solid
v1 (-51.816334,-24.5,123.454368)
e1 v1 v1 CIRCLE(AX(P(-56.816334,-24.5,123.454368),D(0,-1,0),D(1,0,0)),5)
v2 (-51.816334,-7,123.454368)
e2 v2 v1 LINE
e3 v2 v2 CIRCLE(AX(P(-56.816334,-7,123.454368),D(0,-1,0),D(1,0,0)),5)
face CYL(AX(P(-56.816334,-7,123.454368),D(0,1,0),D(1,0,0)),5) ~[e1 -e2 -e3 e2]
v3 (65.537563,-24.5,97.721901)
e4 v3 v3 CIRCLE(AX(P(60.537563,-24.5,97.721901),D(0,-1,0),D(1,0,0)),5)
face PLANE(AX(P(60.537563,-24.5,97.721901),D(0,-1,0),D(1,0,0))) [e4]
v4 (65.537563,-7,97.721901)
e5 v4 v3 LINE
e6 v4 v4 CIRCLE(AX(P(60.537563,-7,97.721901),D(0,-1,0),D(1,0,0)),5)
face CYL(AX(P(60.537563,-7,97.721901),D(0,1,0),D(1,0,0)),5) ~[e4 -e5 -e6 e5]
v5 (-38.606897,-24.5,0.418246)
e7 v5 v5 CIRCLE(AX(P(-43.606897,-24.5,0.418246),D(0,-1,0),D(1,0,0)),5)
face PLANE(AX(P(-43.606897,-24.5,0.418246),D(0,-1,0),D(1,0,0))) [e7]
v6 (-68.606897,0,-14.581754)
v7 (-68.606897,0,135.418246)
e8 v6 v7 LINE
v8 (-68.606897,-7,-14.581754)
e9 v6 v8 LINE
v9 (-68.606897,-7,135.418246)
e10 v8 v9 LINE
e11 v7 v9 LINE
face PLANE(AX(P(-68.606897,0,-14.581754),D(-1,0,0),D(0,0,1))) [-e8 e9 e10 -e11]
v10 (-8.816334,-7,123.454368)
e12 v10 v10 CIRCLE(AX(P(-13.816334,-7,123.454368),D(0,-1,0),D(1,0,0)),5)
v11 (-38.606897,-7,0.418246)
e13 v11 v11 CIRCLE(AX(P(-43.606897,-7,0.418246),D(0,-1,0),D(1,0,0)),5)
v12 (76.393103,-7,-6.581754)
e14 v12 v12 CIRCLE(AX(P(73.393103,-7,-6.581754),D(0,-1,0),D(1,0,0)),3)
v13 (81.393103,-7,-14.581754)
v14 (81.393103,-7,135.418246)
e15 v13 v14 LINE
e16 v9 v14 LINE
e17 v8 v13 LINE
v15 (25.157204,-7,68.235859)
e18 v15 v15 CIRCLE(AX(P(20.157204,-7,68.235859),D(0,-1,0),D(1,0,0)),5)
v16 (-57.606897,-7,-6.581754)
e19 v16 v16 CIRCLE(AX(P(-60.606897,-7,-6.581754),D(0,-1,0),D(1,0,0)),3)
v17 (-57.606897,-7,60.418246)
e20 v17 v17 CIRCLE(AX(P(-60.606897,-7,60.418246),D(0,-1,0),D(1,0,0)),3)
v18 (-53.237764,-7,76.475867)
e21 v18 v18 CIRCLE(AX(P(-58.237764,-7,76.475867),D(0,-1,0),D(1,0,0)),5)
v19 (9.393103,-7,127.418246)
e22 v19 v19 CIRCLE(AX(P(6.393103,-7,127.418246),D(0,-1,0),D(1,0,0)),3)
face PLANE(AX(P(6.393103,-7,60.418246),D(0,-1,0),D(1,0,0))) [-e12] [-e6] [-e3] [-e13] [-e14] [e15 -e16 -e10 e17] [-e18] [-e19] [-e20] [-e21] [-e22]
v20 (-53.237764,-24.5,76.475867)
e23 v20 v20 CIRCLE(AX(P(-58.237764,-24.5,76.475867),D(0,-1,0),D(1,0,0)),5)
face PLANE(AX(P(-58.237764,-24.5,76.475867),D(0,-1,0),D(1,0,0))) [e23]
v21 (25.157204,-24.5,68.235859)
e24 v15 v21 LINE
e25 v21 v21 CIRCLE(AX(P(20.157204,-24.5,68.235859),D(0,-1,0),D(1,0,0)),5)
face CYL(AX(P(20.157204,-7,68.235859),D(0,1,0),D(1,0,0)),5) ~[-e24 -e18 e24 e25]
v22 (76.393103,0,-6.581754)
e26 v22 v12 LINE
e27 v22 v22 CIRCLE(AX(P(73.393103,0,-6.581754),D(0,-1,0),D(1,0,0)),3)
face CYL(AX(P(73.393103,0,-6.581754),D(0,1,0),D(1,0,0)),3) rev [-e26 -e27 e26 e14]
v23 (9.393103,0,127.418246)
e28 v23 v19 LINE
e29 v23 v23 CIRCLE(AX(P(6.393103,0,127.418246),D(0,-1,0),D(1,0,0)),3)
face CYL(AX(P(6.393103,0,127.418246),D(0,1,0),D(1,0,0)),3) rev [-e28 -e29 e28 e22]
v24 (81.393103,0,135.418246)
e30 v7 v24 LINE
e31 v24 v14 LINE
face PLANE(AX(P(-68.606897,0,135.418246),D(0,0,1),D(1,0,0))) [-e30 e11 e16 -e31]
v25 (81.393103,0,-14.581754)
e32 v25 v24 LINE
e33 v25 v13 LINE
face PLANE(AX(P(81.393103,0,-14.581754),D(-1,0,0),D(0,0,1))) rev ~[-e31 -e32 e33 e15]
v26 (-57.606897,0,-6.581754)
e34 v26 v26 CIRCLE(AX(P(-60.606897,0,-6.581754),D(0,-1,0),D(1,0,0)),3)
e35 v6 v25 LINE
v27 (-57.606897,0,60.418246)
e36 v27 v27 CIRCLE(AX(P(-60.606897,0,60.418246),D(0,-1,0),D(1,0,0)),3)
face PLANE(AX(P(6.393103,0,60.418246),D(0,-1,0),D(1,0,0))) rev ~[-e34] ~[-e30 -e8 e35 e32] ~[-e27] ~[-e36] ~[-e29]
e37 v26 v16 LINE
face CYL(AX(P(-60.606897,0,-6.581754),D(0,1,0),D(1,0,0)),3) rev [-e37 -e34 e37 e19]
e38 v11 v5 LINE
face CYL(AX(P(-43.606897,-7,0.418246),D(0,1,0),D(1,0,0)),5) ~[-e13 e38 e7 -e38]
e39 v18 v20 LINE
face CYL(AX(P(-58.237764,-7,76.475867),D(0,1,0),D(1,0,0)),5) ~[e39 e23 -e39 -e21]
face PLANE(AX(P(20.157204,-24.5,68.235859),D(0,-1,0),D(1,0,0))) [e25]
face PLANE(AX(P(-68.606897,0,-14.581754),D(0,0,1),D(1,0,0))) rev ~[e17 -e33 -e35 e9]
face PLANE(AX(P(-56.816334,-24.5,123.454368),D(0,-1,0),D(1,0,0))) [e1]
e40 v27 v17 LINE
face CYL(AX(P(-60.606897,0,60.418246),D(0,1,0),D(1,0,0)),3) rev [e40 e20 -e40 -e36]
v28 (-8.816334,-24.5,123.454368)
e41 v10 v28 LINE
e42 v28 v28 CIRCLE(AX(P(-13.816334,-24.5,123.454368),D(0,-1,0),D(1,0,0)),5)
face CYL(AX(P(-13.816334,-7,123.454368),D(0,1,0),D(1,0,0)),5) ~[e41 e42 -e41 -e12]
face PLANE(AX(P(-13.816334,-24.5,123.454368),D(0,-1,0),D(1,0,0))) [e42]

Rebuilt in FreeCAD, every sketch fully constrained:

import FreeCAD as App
import Part
import Sketcher
Q = App.Units.Quantity


def add_polygon(sketch, points):
    """Adds a closed chain of lines whose ends are joined by coincident constraints."""
    first, n = sketch.GeometryCount, len(points)
    for a, b in zip(points, points[1:] + points[:1]):
        sketch.addGeometry(Part.LineSegment(App.Vector(*a, 0), App.Vector(*b, 0)), False)
    for i in range(n):
        sketch.addConstraint(Sketcher.Constraint("Coincident", first + i, 2, first + (i + 1) % n, 1))

doc = App.newDocument("Part")
body = doc.addObject("PartDesign::Body", "Body")

# Sketch on XZ plane
sketch1 = doc.addObject("Sketcher::SketchObject", "Sketch")
body.addObject(sketch1)
sketch1.AttachmentSupport = (doc.XZ_Plane, [""])
sketch1.MapMode = "FlatFace"
add_polygon(sketch1, [(-68.6, 135.4), (-68.6, -14.6), (81.4, -14.6), (81.4, 135.4)])  # lines 0-3
sketch1.addGeometry(Part.Circle(App.Vector(-60.6, -6.6, 0), App.Vector(0, 0, 1), 3), False)  # 4
sketch1.addGeometry(Part.Circle(App.Vector(73.4, -6.6, 0), App.Vector(0, 0, 1), 3), False)  # 5
sketch1.addGeometry(Part.Circle(App.Vector(-60.6, 60.4, 0), App.Vector(0, 0, 1), 3), False)  # 6
sketch1.addGeometry(Part.Circle(App.Vector(6.4, 127.4, 0), App.Vector(0, 0, 1), 3), False)  # 7
sketch1.addConstraint(Sketcher.Constraint("Vertical", 0))
sketch1.addConstraint(Sketcher.Constraint("Horizontal", 1))
sketch1.addConstraint(Sketcher.Constraint("Vertical", 2))
sketch1.addConstraint(Sketcher.Constraint("Horizontal", 3))
sketch1.addConstraint(Sketcher.Constraint("Equal", 4, 5))
sketch1.addConstraint(Sketcher.Constraint("Equal", 5, 6))
sketch1.addConstraint(Sketcher.Constraint("Equal", 6, 7))
sketch1.addConstraint(Sketcher.Constraint("Horizontal", 4, 3, 5, 3))
sketch1.addConstraint(Sketcher.Constraint("Vertical", 4, 3, 6, 3))
sketch1.addConstraint(Sketcher.Constraint("Equal", 3, 0))
sketch1.addConstraint(Sketcher.Constraint("Diameter", 4, Q("6 mm")))
sketch1.addConstraint(Sketcher.Constraint("DistanceX", 1, 1, 1, 2, Q("150 mm")))
sketch1.addConstraint(Sketcher.Constraint("DistanceX", 4, 3, 5, 3, Q("134 mm")))
sketch1.addConstraint(Sketcher.Constraint("DistanceY", 4, 3, 6, 3, Q("67 mm")))
sketch1.addConstraint(Sketcher.Constraint("DistanceX", 6, 3, 7, 3, Q("67 mm")))
sketch1.addConstraint(Sketcher.Constraint("DistanceY", 6, 3, 7, 3, Q("67 mm")))
sketch1.addConstraint(Sketcher.Constraint("DistanceX", 0, 2, 4, 3, Q("8 mm")))
sketch1.addConstraint(Sketcher.Constraint("DistanceY", 0, 2, 4, 3, Q("8 mm")))
sketch1.addConstraint(Sketcher.Constraint("DistanceX", 4, 3, -1, 1, Q("60.606897 mm")))
sketch1.addConstraint(Sketcher.Constraint("DistanceY", 4, 3, -1, 1, Q("6.581754 mm")))
pad1 = doc.addObject("PartDesign::Pad", "Pad")
body.addObject(pad1)
pad1.Profile = sketch1
pad1.Length = 7

# Sketch on XZ plane
sketch2 = doc.addObject("Sketcher::SketchObject", "Sketch001")
body.addObject(sketch2)
sketch2.AttachmentSupport = (doc.XZ_Plane, [""])
sketch2.MapMode = "FlatFace"
sketch2.AttachmentOffset = App.Placement(App.Vector(0, 0, 7), App.Rotation())
sketch2.addGeometry(Part.Circle(App.Vector(-57, 123, 0), App.Vector(0, 0, 1), 5), False)
sketch2.addGeometry(Part.Circle(App.Vector(-14, 123, 0), App.Vector(0, 0, 1), 5), False)
sketch2.addGeometry(Part.Circle(App.Vector(-58, 76, 0), App.Vector(0, 0, 1), 5), False)
sketch2.addGeometry(Part.Circle(App.Vector(-44, 0, 0), App.Vector(0, 0, 1), 5), False)
sketch2.addGeometry(Part.Circle(App.Vector(20, 68, 0), App.Vector(0, 0, 1), 5), False)
sketch2.addGeometry(Part.Circle(App.Vector(61, 98, 0), App.Vector(0, 0, 1), 5), False)
sketch2.addConstraint(Sketcher.Constraint("Equal", 0, 1))
sketch2.addConstraint(Sketcher.Constraint("Equal", 1, 2))
sketch2.addConstraint(Sketcher.Constraint("Equal", 2, 3))
sketch2.addConstraint(Sketcher.Constraint("Equal", 3, 4))
sketch2.addConstraint(Sketcher.Constraint("Equal", 4, 5))
sketch2.addConstraint(Sketcher.Constraint("Horizontal", 0, 3, 1, 3))
sketch2.addConstraint(Sketcher.Constraint("Diameter", 0, Q("10 mm")))
sketch2.addConstraint(Sketcher.Constraint("DistanceX", 0, 3, 1, 3, Q("43 mm")))
sketch2.addConstraint(Sketcher.Constraint("DistanceY", -1, 1, 5, 3, Q("97.721901 mm")))
sketch2.addConstraint(Sketcher.Constraint("DistanceY", 2, 3, 0, 3, Q("46.978501 mm")))
sketch2.addConstraint(Sketcher.Constraint("DistanceX", 3, 3, 4, 3, Q("63.764101 mm")))
sketch2.addConstraint(Sketcher.Constraint("DistanceY", -1, 1, 0, 3, Q("123.454368 mm")))
sketch2.addConstraint(Sketcher.Constraint("DistanceY", -1, 1, 4, 3, Q("68.235859 mm")))
sketch2.addConstraint(Sketcher.Constraint("DistanceX", 2, 3, 0, 3, Q("1.42143 mm")))
sketch2.addConstraint(Sketcher.Constraint("DistanceY", 3, 3, 2, 3, Q("76.057621 mm")))
sketch2.addConstraint(Sketcher.Constraint("DistanceX", 2, 3, 4, 3, Q("78.394968 mm")))
sketch2.addConstraint(Sketcher.Constraint("DistanceX", 4, 3, 5, 3, Q("40.380359 mm")))
sketch2.addConstraint(Sketcher.Constraint("DistanceX", 0, 3, -1, 1, Q("56.816334 mm")))
pad2 = doc.addObject("PartDesign::Pad", "Pad001")
body.addObject(pad2)
pad2.Profile = sketch2
pad2.Length = 17.5

doc.recompute()
